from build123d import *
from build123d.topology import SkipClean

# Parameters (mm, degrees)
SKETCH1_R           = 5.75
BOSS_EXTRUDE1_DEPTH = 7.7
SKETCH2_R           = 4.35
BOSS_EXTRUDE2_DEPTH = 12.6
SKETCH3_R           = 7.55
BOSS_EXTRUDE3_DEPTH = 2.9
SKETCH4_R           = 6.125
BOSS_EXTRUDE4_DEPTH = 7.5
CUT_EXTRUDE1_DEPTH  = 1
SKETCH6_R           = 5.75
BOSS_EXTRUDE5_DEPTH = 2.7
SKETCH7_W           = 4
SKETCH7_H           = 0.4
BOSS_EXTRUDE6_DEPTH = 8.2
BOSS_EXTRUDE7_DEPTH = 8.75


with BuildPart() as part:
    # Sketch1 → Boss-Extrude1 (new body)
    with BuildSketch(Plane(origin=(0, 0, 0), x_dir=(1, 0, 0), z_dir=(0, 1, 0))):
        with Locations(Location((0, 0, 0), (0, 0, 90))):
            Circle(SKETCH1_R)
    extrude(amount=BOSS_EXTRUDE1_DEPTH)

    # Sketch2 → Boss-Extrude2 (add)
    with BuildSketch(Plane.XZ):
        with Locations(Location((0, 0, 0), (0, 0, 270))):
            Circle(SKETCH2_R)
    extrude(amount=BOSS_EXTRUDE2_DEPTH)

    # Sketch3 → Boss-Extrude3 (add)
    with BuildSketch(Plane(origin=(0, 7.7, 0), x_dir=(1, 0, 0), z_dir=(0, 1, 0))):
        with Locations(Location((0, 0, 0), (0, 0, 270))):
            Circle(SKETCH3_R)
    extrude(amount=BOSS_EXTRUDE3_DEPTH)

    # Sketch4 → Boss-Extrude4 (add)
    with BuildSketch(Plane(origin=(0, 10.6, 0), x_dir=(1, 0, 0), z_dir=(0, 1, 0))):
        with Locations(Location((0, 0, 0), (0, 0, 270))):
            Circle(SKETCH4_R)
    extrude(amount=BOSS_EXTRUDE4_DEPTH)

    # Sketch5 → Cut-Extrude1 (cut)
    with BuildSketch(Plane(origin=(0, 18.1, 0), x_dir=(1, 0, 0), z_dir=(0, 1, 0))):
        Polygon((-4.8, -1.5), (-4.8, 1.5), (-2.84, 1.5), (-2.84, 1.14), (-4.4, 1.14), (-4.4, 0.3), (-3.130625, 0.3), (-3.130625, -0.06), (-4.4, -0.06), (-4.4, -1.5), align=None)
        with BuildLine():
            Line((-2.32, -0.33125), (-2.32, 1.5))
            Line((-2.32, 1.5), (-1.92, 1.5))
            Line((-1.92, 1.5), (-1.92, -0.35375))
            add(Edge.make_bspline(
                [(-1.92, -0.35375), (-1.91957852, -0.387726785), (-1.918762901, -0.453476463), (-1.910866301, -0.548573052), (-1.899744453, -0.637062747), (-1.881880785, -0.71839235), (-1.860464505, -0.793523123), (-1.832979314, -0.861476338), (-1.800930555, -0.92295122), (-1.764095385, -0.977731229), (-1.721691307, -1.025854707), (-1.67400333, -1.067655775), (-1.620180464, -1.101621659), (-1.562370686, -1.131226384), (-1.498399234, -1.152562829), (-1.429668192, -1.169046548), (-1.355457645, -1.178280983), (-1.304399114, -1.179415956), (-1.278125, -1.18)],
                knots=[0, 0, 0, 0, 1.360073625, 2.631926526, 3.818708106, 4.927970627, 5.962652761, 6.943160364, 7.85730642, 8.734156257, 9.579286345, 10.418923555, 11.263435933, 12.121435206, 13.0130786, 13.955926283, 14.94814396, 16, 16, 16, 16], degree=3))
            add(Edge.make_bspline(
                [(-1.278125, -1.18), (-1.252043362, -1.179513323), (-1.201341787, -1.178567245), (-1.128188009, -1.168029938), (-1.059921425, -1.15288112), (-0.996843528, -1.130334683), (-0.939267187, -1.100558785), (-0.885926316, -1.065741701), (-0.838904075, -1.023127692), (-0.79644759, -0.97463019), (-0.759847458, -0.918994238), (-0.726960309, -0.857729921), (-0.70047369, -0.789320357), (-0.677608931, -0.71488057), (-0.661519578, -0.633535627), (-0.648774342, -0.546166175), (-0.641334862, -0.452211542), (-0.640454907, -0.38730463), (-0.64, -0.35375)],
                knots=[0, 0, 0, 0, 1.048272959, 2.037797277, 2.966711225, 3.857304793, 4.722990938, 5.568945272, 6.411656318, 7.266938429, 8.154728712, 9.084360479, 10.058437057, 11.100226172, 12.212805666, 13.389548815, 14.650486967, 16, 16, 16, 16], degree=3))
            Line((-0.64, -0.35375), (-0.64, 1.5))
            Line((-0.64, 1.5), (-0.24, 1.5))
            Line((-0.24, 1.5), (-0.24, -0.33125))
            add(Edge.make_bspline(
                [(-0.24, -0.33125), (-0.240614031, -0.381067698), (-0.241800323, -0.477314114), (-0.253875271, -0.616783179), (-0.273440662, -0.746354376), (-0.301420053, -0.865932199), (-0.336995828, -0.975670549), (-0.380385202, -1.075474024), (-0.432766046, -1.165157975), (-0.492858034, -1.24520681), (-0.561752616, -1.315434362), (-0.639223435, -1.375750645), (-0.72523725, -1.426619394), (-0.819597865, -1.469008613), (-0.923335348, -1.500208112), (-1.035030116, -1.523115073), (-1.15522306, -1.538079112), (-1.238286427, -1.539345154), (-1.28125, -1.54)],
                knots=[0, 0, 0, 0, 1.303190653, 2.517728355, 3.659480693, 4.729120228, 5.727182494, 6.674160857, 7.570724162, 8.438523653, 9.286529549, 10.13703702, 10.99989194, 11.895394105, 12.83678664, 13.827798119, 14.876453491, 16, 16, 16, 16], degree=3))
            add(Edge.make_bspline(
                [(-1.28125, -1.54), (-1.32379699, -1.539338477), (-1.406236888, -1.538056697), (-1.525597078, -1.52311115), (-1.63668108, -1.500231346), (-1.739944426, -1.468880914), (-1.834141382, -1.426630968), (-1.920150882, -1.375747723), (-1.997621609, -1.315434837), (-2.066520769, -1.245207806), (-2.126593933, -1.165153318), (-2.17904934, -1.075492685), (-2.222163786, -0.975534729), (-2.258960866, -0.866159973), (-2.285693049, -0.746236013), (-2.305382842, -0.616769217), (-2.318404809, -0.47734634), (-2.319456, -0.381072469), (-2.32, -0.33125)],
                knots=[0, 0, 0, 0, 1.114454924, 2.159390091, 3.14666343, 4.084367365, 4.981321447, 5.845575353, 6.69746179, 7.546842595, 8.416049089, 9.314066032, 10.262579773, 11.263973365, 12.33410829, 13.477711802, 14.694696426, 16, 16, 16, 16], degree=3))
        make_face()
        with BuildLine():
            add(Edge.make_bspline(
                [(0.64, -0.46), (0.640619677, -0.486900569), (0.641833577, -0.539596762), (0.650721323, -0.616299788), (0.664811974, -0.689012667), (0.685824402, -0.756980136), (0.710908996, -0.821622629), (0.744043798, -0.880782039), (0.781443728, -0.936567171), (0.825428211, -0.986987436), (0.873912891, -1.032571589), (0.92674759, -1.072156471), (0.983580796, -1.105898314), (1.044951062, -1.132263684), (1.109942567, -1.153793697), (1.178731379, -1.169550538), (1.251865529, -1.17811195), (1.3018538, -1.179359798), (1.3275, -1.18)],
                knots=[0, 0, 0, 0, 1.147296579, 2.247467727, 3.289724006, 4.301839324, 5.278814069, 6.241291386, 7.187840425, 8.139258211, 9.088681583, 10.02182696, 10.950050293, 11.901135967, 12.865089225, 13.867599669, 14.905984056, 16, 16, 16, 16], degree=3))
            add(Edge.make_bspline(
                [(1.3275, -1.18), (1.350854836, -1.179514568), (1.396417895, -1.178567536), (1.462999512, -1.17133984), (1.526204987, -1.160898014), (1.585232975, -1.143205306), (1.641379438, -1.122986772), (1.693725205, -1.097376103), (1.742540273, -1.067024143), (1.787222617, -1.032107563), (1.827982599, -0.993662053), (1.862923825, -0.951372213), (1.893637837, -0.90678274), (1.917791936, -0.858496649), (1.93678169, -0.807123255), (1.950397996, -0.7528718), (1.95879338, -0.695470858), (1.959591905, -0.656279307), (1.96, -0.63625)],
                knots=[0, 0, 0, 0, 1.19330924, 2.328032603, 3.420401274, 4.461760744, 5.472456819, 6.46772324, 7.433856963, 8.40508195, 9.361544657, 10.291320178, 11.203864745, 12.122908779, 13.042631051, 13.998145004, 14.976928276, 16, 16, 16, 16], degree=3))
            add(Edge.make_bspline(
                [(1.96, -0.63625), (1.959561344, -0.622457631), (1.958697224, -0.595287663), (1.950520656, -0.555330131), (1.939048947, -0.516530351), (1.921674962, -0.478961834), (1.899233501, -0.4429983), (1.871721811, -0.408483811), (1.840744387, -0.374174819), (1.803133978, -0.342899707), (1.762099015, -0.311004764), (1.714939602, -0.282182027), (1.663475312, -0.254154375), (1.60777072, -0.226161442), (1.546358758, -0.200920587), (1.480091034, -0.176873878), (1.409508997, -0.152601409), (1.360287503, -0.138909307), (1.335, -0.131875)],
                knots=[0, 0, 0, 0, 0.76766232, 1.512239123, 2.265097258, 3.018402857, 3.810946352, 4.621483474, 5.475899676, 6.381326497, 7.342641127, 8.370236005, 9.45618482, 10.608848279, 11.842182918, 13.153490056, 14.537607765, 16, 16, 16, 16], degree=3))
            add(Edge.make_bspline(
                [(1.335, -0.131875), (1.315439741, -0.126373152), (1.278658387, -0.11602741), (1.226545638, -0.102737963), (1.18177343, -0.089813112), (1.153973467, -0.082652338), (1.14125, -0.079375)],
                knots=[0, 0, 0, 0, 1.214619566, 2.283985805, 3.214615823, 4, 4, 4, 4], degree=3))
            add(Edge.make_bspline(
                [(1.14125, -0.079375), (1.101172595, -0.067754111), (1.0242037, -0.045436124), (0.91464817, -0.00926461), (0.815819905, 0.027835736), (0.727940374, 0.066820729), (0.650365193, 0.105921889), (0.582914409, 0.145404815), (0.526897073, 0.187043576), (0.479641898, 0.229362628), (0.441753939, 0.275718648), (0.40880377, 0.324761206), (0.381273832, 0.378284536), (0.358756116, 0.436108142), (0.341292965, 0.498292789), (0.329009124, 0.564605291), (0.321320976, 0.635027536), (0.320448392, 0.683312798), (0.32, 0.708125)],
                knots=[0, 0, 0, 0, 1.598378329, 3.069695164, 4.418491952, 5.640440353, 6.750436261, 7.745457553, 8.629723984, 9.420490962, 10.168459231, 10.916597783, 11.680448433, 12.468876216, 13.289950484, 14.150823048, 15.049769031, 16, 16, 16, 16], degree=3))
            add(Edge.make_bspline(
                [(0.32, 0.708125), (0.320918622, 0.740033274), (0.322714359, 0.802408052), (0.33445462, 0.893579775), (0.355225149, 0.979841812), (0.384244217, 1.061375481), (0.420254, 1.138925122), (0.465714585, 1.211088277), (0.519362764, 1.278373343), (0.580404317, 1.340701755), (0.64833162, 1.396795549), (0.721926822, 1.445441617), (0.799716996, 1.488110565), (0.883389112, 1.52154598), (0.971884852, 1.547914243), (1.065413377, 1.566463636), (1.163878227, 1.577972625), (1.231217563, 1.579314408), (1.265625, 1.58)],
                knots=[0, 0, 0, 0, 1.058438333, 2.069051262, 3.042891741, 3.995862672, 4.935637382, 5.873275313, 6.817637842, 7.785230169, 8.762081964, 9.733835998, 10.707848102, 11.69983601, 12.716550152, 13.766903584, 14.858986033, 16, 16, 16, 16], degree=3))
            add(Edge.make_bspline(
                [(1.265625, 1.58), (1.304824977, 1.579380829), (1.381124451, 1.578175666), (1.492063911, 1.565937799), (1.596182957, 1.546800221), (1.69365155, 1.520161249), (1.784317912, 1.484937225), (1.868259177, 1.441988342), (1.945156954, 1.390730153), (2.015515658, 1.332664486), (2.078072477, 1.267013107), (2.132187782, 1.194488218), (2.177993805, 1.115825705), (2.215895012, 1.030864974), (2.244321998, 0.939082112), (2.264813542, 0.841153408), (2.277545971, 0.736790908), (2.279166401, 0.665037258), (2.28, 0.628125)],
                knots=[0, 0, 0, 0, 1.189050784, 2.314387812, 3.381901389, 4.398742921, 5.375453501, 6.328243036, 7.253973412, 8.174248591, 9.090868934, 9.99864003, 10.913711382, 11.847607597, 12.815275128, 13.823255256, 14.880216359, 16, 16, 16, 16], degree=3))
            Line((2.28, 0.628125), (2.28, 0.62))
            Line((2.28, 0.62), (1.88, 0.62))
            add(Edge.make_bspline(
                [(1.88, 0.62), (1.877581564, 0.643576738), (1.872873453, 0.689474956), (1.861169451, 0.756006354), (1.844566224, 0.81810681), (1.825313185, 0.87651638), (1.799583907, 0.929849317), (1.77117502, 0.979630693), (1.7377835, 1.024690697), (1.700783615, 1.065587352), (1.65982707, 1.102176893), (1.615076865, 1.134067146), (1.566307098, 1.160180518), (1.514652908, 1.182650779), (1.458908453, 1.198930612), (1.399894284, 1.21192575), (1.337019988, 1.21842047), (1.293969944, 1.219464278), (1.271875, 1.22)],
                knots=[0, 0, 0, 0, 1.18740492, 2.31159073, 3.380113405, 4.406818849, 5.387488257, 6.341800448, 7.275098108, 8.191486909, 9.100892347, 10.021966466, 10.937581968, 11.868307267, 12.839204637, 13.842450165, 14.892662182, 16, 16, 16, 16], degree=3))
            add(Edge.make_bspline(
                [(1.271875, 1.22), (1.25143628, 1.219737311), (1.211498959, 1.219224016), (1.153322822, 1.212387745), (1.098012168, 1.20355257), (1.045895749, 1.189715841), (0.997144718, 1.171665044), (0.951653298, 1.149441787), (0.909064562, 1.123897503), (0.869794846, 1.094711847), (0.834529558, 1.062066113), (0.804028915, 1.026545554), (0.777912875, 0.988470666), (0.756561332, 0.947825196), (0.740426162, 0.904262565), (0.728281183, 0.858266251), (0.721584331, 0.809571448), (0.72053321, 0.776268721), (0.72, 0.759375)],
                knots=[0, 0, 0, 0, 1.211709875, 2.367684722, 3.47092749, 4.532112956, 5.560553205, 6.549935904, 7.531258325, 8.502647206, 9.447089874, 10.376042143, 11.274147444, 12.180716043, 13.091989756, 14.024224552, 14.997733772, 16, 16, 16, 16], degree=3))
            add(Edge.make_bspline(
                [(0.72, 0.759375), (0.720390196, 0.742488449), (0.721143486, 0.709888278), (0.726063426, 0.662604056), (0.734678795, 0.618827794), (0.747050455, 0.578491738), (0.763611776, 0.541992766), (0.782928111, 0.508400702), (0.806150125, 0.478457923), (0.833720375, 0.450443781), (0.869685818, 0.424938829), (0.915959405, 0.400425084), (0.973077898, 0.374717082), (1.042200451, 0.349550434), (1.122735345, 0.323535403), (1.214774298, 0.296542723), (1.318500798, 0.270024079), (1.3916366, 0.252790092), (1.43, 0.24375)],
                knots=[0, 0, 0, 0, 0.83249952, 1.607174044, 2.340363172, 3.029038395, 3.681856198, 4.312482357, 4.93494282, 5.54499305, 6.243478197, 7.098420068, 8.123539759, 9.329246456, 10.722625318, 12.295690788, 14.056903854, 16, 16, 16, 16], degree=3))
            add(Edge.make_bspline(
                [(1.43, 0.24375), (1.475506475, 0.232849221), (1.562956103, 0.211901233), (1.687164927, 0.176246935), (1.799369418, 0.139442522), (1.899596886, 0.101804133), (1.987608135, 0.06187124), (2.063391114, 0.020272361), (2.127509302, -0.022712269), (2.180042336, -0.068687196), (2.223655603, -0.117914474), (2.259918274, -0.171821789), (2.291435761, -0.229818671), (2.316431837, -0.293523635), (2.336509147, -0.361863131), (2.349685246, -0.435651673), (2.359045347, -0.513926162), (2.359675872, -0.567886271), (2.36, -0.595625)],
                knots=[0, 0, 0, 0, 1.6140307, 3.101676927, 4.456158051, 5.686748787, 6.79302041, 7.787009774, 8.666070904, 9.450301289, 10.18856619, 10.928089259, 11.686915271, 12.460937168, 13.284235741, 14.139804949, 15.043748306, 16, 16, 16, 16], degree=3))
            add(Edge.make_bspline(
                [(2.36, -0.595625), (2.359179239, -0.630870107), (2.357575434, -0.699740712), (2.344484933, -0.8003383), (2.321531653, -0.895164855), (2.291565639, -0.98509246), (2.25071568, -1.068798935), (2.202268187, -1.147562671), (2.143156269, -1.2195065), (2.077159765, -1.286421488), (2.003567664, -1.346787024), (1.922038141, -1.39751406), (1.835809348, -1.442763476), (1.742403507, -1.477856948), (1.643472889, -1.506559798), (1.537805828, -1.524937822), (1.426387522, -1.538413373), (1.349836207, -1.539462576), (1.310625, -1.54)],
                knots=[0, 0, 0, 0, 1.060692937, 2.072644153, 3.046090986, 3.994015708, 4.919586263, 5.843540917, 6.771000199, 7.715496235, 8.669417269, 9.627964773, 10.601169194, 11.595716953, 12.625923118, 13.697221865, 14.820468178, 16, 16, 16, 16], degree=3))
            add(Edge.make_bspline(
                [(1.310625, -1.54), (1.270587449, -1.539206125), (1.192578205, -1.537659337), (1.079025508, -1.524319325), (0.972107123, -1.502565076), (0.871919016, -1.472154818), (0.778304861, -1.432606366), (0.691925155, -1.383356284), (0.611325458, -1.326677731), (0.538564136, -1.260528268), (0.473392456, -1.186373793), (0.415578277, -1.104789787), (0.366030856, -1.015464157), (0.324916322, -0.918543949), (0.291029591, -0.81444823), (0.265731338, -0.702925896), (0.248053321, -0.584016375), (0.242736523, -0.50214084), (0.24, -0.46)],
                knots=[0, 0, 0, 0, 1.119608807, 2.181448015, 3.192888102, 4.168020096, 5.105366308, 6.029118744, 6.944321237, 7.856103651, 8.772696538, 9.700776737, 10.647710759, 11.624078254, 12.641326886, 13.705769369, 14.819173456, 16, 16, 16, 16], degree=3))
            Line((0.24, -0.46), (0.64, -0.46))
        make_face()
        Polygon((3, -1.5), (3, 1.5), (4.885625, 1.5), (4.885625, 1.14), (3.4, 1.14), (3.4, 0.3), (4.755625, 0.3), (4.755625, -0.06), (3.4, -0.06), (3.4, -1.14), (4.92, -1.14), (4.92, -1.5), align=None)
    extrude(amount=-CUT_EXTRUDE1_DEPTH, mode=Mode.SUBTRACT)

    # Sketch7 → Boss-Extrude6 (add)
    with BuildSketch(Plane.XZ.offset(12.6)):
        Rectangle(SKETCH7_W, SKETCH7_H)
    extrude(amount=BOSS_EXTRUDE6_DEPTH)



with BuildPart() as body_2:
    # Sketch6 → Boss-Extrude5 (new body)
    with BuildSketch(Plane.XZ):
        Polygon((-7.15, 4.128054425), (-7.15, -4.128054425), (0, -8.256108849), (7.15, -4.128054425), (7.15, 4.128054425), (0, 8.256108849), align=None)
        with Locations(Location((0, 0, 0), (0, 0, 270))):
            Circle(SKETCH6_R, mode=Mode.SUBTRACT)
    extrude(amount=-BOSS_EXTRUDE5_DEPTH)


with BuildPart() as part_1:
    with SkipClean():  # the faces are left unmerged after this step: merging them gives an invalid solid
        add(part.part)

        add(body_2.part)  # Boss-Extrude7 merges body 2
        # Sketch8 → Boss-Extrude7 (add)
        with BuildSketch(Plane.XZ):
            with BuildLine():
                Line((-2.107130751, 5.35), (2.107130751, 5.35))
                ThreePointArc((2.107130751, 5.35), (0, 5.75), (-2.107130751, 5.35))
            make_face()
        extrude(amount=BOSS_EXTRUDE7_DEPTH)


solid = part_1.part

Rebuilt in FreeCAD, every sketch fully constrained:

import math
import FreeCAD as App
import Part
import Sketcher
Q = App.Units.Quantity

doc = App.newDocument("Part")
params = doc.addObject("Spreadsheet::Sheet", "Params")
for row, (alias, value) in enumerate([
    ("sketch1_diameter", "11.5 mm"),
    ("pad1_length", "7.7 mm"),
    ("sketch2_diameter", "8.7 mm"),
    ("pad2_length", "12.6 mm"),
    ("sketch3_diameter", "15.1 mm"),
    ("pad3_length", "2.9 mm"),
    ("sketch4_diameter", "12.25 mm"),
    ("pad4_length", "7.5 mm"),
    ("sketch5_height", "3 mm"),
    ("sketch5_width", "1.56 mm"),
    ("sketch5_width2", "1.92 mm"),
    ("sketch5_width3", "1.52 mm"),
    ("sketch5_height2", "1.44 mm"),
    ("pocket1_length", "1 mm"),
    ("sketch6_width", "4 mm"),
    ("sketch6_height", "0.4 mm"),
    ("pad5_length", "8.2 mm"),
    ("sketch7_diameter", "11.5 mm"),
    ("pad6_length", "2.7 mm"),
    ("sketch8_radius", "5.75 mm"),
    ("pad7_length", "8.75 mm"),
], start=1):
    params.set(f"A{row}", alias)
    params.set(f"B{row}", "=" + value)
    params.setAlias(f"B{row}", alias)

body = doc.addObject("PartDesign::Body", "Body")

# Sketch on XZ plane
sketch1 = doc.addObject("Sketcher::SketchObject", "Sketch")
body.addObject(sketch1)
sketch1.AttachmentSupport = (doc.XZ_Plane, [""])
sketch1.MapMode = "FlatFace"
sketch1.addGeometry(Part.Circle(App.Vector(0, 0, 0), App.Vector(0, 0, 1), 6), False)
sketch1.addConstraint(Sketcher.Constraint("Coincident", 0, 3, -1, 1))
sketch1.addConstraint(Sketcher.Constraint("Diameter", 0, Q("11.5 mm")))
sketch1.setExpression("Constraints[1]", "Params.sketch1_diameter")
pad1 = doc.addObject("PartDesign::Pad", "Pad")
body.addObject(pad1)
pad1.Profile = sketch1
pad1.setExpression("Length", "Params.pad1_length")
pad1.Reversed = True

# Sketch on XZ plane
sketch2 = doc.addObject("Sketcher::SketchObject", "Sketch001")
body.addObject(sketch2)
sketch2.AttachmentSupport = (doc.XZ_Plane, [""])
sketch2.MapMode = "FlatFace"
sketch2.addGeometry(Part.Circle(App.Vector(0, 0, 0), App.Vector(0, 0, 1), 4.3), False)
sketch2.addConstraint(Sketcher.Constraint("Coincident", 0, 3, -1, 1))
sketch2.addConstraint(Sketcher.Constraint("Diameter", 0, Q("8.7 mm")))
sketch2.setExpression("Constraints[1]", "Params.sketch2_diameter")
pad2 = doc.addObject("PartDesign::Pad", "Pad001")
body.addObject(pad2)
pad2.Profile = sketch2
pad2.setExpression("Length", "Params.pad2_length")

# Sketch on XZ plane
sketch3 = doc.addObject("Sketcher::SketchObject", "Sketch002")
body.addObject(sketch3)
sketch3.AttachmentSupport = (doc.XZ_Plane, [""])
sketch3.MapMode = "FlatFace"
sketch3.AttachmentOffset = App.Placement(App.Vector(0, 0, -7.7), App.Rotation())
sketch3.addGeometry(Part.Circle(App.Vector(0, 0, 0), App.Vector(0, 0, 1), 8), False)
sketch3.addConstraint(Sketcher.Constraint("Coincident", 0, 3, -1, 1))
sketch3.addConstraint(Sketcher.Constraint("Diameter", 0, Q("15.1 mm")))
sketch3.setExpression("Constraints[1]", "Params.sketch3_diameter")
pad3 = doc.addObject("PartDesign::Pad", "Pad002")
body.addObject(pad3)
pad3.Profile = sketch3
pad3.setExpression("Length", "Params.pad3_length")
pad3.Reversed = True

# Sketch on XZ plane
sketch4 = doc.addObject("Sketcher::SketchObject", "Sketch003")
body.addObject(sketch4)
sketch4.AttachmentSupport = (doc.XZ_Plane, [""])
sketch4.MapMode = "FlatFace"
sketch4.AttachmentOffset = App.Placement(App.Vector(0, 0, -10.6), App.Rotation())
sketch4.addGeometry(Part.Circle(App.Vector(0, 0, 0), App.Vector(0, 0, 1), 6), False)
sketch4.addConstraint(Sketcher.Constraint("Coincident", 0, 3, -1, 1))
sketch4.addConstraint(Sketcher.Constraint("Diameter", 0, Q("12.25 mm")))
sketch4.setExpression("Constraints[1]", "Params.sketch4_diameter")
pad4 = doc.addObject("PartDesign::Pad", "Pad003")
body.addObject(pad4)
pad4.Profile = sketch4
pad4.setExpression("Length", "Params.pad4_length")
pad4.Reversed = True

# Sketch on XZ plane
sketch5 = doc.addObject("Sketcher::SketchObject", "Sketch004")
body.addObject(sketch5)
sketch5.AttachmentSupport = (doc.XZ_Plane, [""])
sketch5.MapMode = "FlatFace"
sketch5.AttachmentOffset = App.Placement(App.Vector(0, 0, -18.1), App.Rotation())
sketch5.addGeometry(Part.LineSegment(App.Vector(-4.8, -1.5, 0), App.Vector(-4.8, 1.5, 0)), False)
sketch5.addGeometry(Part.LineSegment(App.Vector(-4.8, 1.5, 0), App.Vector(-4.4, 1.5, 0)), False)
sketch5.addGeometry(Part.LineSegment(App.Vector(-4.4, 1.5, 0), App.Vector(-4.4, 0.06, 0)), False)
sketch5.addGeometry(Part.LineSegment(App.Vector(-4.4, 0.06, 0), App.Vector(-3.130625, 0.06, 0)), False)
sketch5.addGeometry(Part.LineSegment(App.Vector(-3.130625, 0.06, 0), App.Vector(-3.130625, -0.3, 0)), False)
sketch5.addGeometry(Part.LineSegment(App.Vector(-3.130625, -0.3, 0), App.Vector(-4.4, -0.3, 0)), False)
sketch5.addGeometry(Part.LineSegment(App.Vector(-4.4, -0.3, 0), App.Vector(-4.4, -1.14, 0)), False)
sketch5.addGeometry(Part.LineSegment(App.Vector(-4.4, -1.14, 0), App.Vector(-2.84, -1.14, 0)), False)
sketch5.addGeometry(Part.LineSegment(App.Vector(-2.84, -1.14, 0), App.Vector(-2.84, -1.5, 0)), False)
sketch5.addGeometry(Part.LineSegment(App.Vector(-2.84, -1.5, 0), App.Vector(-4.8, -1.5, 0)), False)
sketch5.addGeometry(Part.LineSegment(App.Vector(-2.32, -1.5, 0), App.Vector(-2.32, 0.33125, 0)), False)
sketch5.addGeometry(Part.BSplineCurve([App.Vector(-1.28125, 1.54, 0), App.Vector(-1.323797, 1.539338, 0), App.Vector(-1.406237, 1.538057, 0), App.Vector(-1.525597, 1.523111, 0), App.Vector(-1.636681, 1.500231, 0), App.Vector(-1.739944, 1.468881, 0), App.Vector(-1.834141, 1.426631, 0), App.Vector(-1.920151, 1.375748, 0), App.Vector(-1.997622, 1.315435, 0), App.Vector(-2.066521, 1.245208, 0), App.Vector(-2.126594, 1.165153, 0), App.Vector(-2.179049, 1.075493, 0), App.Vector(-2.222164, 0.975535, 0), App.Vector(-2.258961, 0.86616, 0), App.Vector(-2.285693, 0.746236, 0), App.Vector(-2.305383, 0.616769, 0), App.Vector(-2.318405, 0.477346, 0), App.Vector(-2.319456, 0.381072, 0), App.Vector(-2.32, 0.33125, 0)], [4, 1, 1, 1, 1, 1, 1, 1, 1, 1, 1, 1, 1, 1, 1, 1, 4], [0, 1.114454924, 2.159390091, 3.14666343, 4.084367365, 4.981321447, 5.845575353, 6.69746179, 7.546842595, 8.416049089, 9.314066032, 10.262579773, 11.263973365, 12.33410829, 13.477711802, 14.694696426, 16], False, 3, [1, 1, 1, 1, 1, 1, 1, 1, 1, 1, 1, 1, 1, 1, 1, 1, 1, 1, 1], False), False)
sketch5.addGeometry(Part.BSplineCurve([App.Vector(-0.24, 0.33125, 0), App.Vector(-0.240614, 0.381068, 0), App.Vector(-0.2418, 0.477314, 0), App.Vector(-0.253875, 0.616783, 0), App.Vector(-0.273441, 0.746354, 0), App.Vector(-0.30142, 0.865932, 0), App.Vector(-0.336996, 0.975671, 0), App.Vector(-0.380385, 1.075474, 0), App.Vector(-0.432766, 1.165158, 0), App.Vector(-0.492858, 1.245207, 0), App.Vector(-0.561753, 1.315434, 0), App.Vector(-0.639223, 1.375751, 0), App.Vector(-0.725237, 1.426619, 0), App.Vector(-0.819598, 1.469009, 0), App.Vector(-0.923335, 1.500208, 0), App.Vector(-1.03503, 1.523115, 0), App.Vector(-1.155223, 1.538079, 0), App.Vector(-1.238286, 1.539345, 0), App.Vector(-1.28125, 1.54, 0)], [4, 1, 1, 1, 1, 1, 1, 1, 1, 1, 1, 1, 1, 1, 1, 1, 4], [0, 1.303190653, 2.517728355, 3.659480693, 4.729120228, 5.727182494, 6.674160857, 7.570724162, 8.438523653, 9.286529549, 10.13703702, 10.99989194, 11.895394105, 12.83678664, 13.827798119, 14.876453491, 16], False, 3, [1, 1, 1, 1, 1, 1, 1, 1, 1, 1, 1, 1, 1, 1, 1, 1, 1, 1, 1], False), False)
sketch5.addGeometry(Part.LineSegment(App.Vector(-0.24, 0.33125, 0), App.Vector(-0.24, -1.5, 0)), False)
sketch5.addGeometry(Part.LineSegment(App.Vector(-0.24, -1.5, 0), App.Vector(-0.64, -1.5, 0)), False)
sketch5.addGeometry(Part.LineSegment(App.Vector(-0.64, -1.5, 0), App.Vector(-0.64, 0.35375, 0)), False)
sketch5.addGeometry(Part.BSplineCurve([App.Vector(-1.278125, 1.18, 0), App.Vector(-1.252043, 1.179513, 0), App.Vector(-1.201342, 1.178567, 0), App.Vector(-1.128188, 1.16803, 0), App.Vector(-1.059921, 1.152881, 0), App.Vector(-0.996844, 1.130335, 0), App.Vector(-0.939267, 1.100559, 0), App.Vector(-0.885926, 1.065742, 0), App.Vector(-0.838904, 1.023128, 0), App.Vector(-0.796448, 0.97463, 0), App.Vector(-0.759847, 0.918994, 0), App.Vector(-0.72696, 0.85773, 0), App.Vector(-0.700474, 0.78932, 0), App.Vector(-0.677609, 0.714881, 0), App.Vector(-0.66152, 0.633536, 0), App.Vector(-0.648774, 0.546166, 0), App.Vector(-0.641335, 0.452212, 0), App.Vector(-0.640455, 0.387305, 0), App.Vector(-0.64, 0.35375, 0)], [4, 1, 1, 1, 1, 1, 1, 1, 1, 1, 1, 1, 1, 1, 1, 1, 4], [0, 1.048272959, 2.037797277, 2.966711225, 3.857304793, 4.722990938, 5.568945272, 6.411656318, 7.266938429, 8.154728712, 9.084360479, 10.058437057, 11.100226172, 12.212805666, 13.389548815, 14.650486967, 16], False, 3, [1, 1, 1, 1, 1, 1, 1, 1, 1, 1, 1, 1, 1, 1, 1, 1, 1, 1, 1], False), False)
sketch5.addGeometry(Part.BSplineCurve([App.Vector(-1.92, 0.35375, 0), App.Vector(-1.919579, 0.387727, 0), App.Vector(-1.918763, 0.453476, 0), App.Vector(-1.910866, 0.548573, 0), App.Vector(-1.899744, 0.637063, 0), App.Vector(-1.881881, 0.718392, 0), App.Vector(-1.860465, 0.793523, 0), App.Vector(-1.832979, 0.861476, 0), App.Vector(-1.800931, 0.922951, 0), App.Vector(-1.764095, 0.977731, 0), App.Vector(-1.721691, 1.025855, 0), App.Vector(-1.674003, 1.067656, 0), App.Vector(-1.62018, 1.101622, 0), App.Vector(-1.562371, 1.131226, 0), App.Vector(-1.498399, 1.152563, 0), App.Vector(-1.429668, 1.169047, 0), App.Vector(-1.355458, 1.178281, 0), App.Vector(-1.304399, 1.179416, 0), App.Vector(-1.278125, 1.18, 0)], [4, 1, 1, 1, 1, 1, 1, 1, 1, 1, 1, 1, 1, 1, 1, 1, 4], [0, 1.360073625, 2.631926526, 3.818708106, 4.927970627, 5.962652761, 6.943160364, 7.85730642, 8.734156257, 9.579286345, 10.418923555, 11.263435933, 12.121435206, 13.0130786, 13.955926283, 14.94814396, 16], False, 3, [1, 1, 1, 1, 1, 1, 1, 1, 1, 1, 1, 1, 1, 1, 1, 1, 1, 1, 1], False), False)
sketch5.addGeometry(Part.LineSegment(App.Vector(-1.92, 0.35375, 0), App.Vector(-1.92, -1.5, 0)), False)
sketch5.addGeometry(Part.LineSegment(App.Vector(-1.92, -1.5, 0), App.Vector(-2.32, -1.5, 0)), False)
sketch5.addGeometry(Part.BSplineCurve([App.Vector(0.64, 0.46, 0), App.Vector(0.64062, 0.486901, 0), App.Vector(0.641834, 0.539597, 0), App.Vector(0.650721, 0.6163, 0), App.Vector(0.664812, 0.689013, 0), App.Vector(0.685824, 0.75698, 0), App.Vector(0.710909, 0.821623, 0), App.Vector(0.744044, 0.880782, 0), App.Vector(0.781444, 0.936567, 0), App.Vector(0.825428, 0.986987, 0), App.Vector(0.873913, 1.032572, 0), App.Vector(0.926748, 1.072156, 0), App.Vector(0.983581, 1.105898, 0), App.Vector(1.044951, 1.132264, 0), App.Vector(1.109943, 1.153794, 0), App.Vector(1.178731, 1.169551, 0), App.Vector(1.251866, 1.178112, 0), App.Vector(1.301854, 1.17936, 0), App.Vector(1.3275, 1.18, 0)], [4, 1, 1, 1, 1, 1, 1, 1, 1, 1, 1, 1, 1, 1, 1, 1, 4], [0, 1.147296579, 2.247467727, 3.289724006, 4.301839324, 5.278814069, 6.241291386, 7.187840425, 8.139258211, 9.088681583, 10.02182696, 10.950050293, 11.901135967, 12.865089225, 13.867599669, 14.905984056, 16], False, 3, [1, 1, 1, 1, 1, 1, 1, 1, 1, 1, 1, 1, 1, 1, 1, 1, 1, 1, 1], False), False)
sketch5.addGeometry(Part.LineSegment(App.Vector(0.64, 0.46, 0), App.Vector(0.24, 0.46, 0)), False)
sketch5.addGeometry(Part.BSplineCurve([App.Vector(1.310625, 1.54, 0), App.Vector(1.270587, 1.539206, 0), App.Vector(1.192578, 1.537659, 0), App.Vector(1.079026, 1.524319, 0), App.Vector(0.972107, 1.502565, 0), App.Vector(0.871919, 1.472155, 0), App.Vector(0.778305, 1.432606, 0), App.Vector(0.691925, 1.383356, 0), App.Vector(0.611325, 1.326678, 0), App.Vector(0.538564, 1.260528, 0), App.Vector(0.473392, 1.186374, 0), App.Vector(0.415578, 1.10479, 0), App.Vector(0.366031, 1.015464, 0), App.Vector(0.324916, 0.918544, 0), App.Vector(0.29103, 0.814448, 0), App.Vector(0.265731, 0.702926, 0), App.Vector(0.248053, 0.584016, 0), App.Vector(0.242737, 0.502141, 0), App.Vector(0.24, 0.46, 0)], [4, 1, 1, 1, 1, 1, 1, 1, 1, 1, 1, 1, 1, 1, 1, 1, 4], [0, 1.119608807, 2.181448015, 3.192888102, 4.168020096, 5.105366308, 6.029118744, 6.944321237, 7.856103651, 8.772696538, 9.700776737, 10.647710759, 11.624078254, 12.641326886, 13.705769369, 14.819173456, 16], False, 3, [1, 1, 1, 1, 1, 1, 1, 1, 1, 1, 1, 1, 1, 1, 1, 1, 1, 1, 1], False), False)
sketch5.addGeometry(Part.BSplineCurve([App.Vector(2.36, 0.595625, 0), App.Vector(2.359179, 0.63087, 0), App.Vector(2.357575, 0.699741, 0), App.Vector(2.344485, 0.800338, 0), App.Vector(2.321532, 0.895165, 0), App.Vector(2.291566, 0.985092, 0), App.Vector(2.250716, 1.068799, 0), App.Vector(2.202268, 1.147563, 0), App.Vector(2.143156, 1.219507, 0), App.Vector(2.07716, 1.286421, 0), App.Vector(2.003568, 1.346787, 0), App.Vector(1.922038, 1.397514, 0), App.Vector(1.835809, 1.442763, 0), App.Vector(1.742404, 1.477857, 0), App.Vector(1.643473, 1.50656, 0), App.Vector(1.537806, 1.524938, 0), App.Vector(1.426388, 1.538413, 0), App.Vector(1.349836, 1.539463, 0), App.Vector(1.310625, 1.54, 0)], [4, 1, 1, 1, 1, 1, 1, 1, 1, 1, 1, 1, 1, 1, 1, 1, 4], [0, 1.060692937, 2.072644153, 3.046090986, 3.994015708, 4.919586263, 5.843540917, 6.771000199, 7.715496235, 8.669417269, 9.627964773, 10.601169194, 11.595716953, 12.625923118, 13.697221865, 14.820468178, 16], False, 3, [1, 1, 1, 1, 1, 1, 1, 1, 1, 1, 1, 1, 1, 1, 1, 1, 1, 1, 1], False), False)
sketch5.addGeometry(Part.BSplineCurve([App.Vector(1.43, -0.24375, 0), App.Vector(1.475506, -0.232849, 0), App.Vector(1.562956, -0.211901, 0), App.Vector(1.687165, -0.176247, 0), App.Vector(1.799369, -0.139443, 0), App.Vector(1.899597, -0.101804, 0), App.Vector(1.987608, -0.061871, 0), App.Vector(2.063391, -0.020272, 0), App.Vector(2.127509, 0.022712, 0), App.Vector(2.180042, 0.068687, 0), App.Vector(2.223656, 0.117914, 0), App.Vector(2.259918, 0.171822, 0), App.Vector(2.291436, 0.229819, 0), App.Vector(2.316432, 0.293524, 0), App.Vector(2.336509, 0.361863, 0), App.Vector(2.349685, 0.435652, 0), App.Vector(2.359045, 0.513926, 0), App.Vector(2.359676, 0.567886, 0), App.Vector(2.36, 0.595625, 0)], [4, 1, 1, 1, 1, 1, 1, 1, 1, 1, 1, 1, 1, 1, 1, 1, 4], [0, 1.6140307, 3.101676927, 4.456158051, 5.686748787, 6.79302041, 7.787009774, 8.666070904, 9.450301289, 10.18856619, 10.928089259, 11.686915271, 12.460937168, 13.284235741, 14.139804949, 15.043748306, 16], False, 3, [1, 1, 1, 1, 1, 1, 1, 1, 1, 1, 1, 1, 1, 1, 1, 1, 1, 1, 1], False), False)
sketch5.addGeometry(Part.BSplineCurve([App.Vector(0.72, -0.759375, 0), App.Vector(0.72039, -0.742488, 0), App.Vector(0.721143, -0.709888, 0), App.Vector(0.726063, -0.662604, 0), App.Vector(0.734679, -0.618828, 0), App.Vector(0.74705, -0.578492, 0), App.Vector(0.763612, -0.541993, 0), App.Vector(0.782928, -0.508401, 0), App.Vector(0.80615, -0.478458, 0), App.Vector(0.83372, -0.450444, 0), App.Vector(0.869686, -0.424939, 0), App.Vector(0.915959, -0.400425, 0), App.Vector(0.973078, -0.374717, 0), App.Vector(1.0422, -0.34955, 0), App.Vector(1.122735, -0.323535, 0), App.Vector(1.214774, -0.296543, 0), App.Vector(1.318501, -0.270024, 0), App.Vector(1.391637, -0.25279, 0), App.Vector(1.43, -0.24375, 0)], [4, 1, 1, 1, 1, 1, 1, 1, 1, 1, 1, 1, 1, 1, 1, 1, 4], [0, 0.83249952, 1.607174044, 2.340363172, 3.029038395, 3.681856198, 4.312482357, 4.93494282, 5.54499305, 6.243478197, 7.098420068, 8.123539759, 9.329246456, 10.722625318, 12.295690788, 14.056903854, 16], False, 3, [1, 1, 1, 1, 1, 1, 1, 1, 1, 1, 1, 1, 1, 1, 1, 1, 1, 1, 1], False), False)
sketch5.addGeometry(Part.BSplineCurve([App.Vector(1.271875, -1.22, 0), App.Vector(1.251436, -1.219737, 0), App.Vector(1.211499, -1.219224, 0), App.Vector(1.153323, -1.212388, 0), App.Vector(1.098012, -1.203553, 0), App.Vector(1.045896, -1.189716, 0), App.Vector(0.997145, -1.171665, 0), App.Vector(0.951653, -1.149442, 0), App.Vector(0.909065, -1.123898, 0), App.Vector(0.869795, -1.094712, 0), App.Vector(0.83453, -1.062066, 0), App.Vector(0.804029, -1.026546, 0), App.Vector(0.777913, -0.988471, 0), App.Vector(0.756561, -0.947825, 0), App.Vector(0.740426, -0.904263, 0), App.Vector(0.728281, -0.858266, 0), App.Vector(0.721584, -0.809571, 0), App.Vector(0.720533, -0.776269, 0), App.Vector(0.72, -0.759375, 0)], [4, 1, 1, 1, 1, 1, 1, 1, 1, 1, 1, 1, 1, 1, 1, 1, 4], [0, 1.211709875, 2.367684722, 3.47092749, 4.532112956, 5.560553205, 6.549935904, 7.531258325, 8.502647206, 9.447089874, 10.376042143, 11.274147444, 12.180716043, 13.091989756, 14.024224552, 14.997733772, 16], False, 3, [1, 1, 1, 1, 1, 1, 1, 1, 1, 1, 1, 1, 1, 1, 1, 1, 1, 1, 1], False), False)
sketch5.addGeometry(Part.BSplineCurve([App.Vector(1.88, -0.62, 0), App.Vector(1.877582, -0.643577, 0), App.Vector(1.872873, -0.689475, 0), App.Vector(1.861169, -0.756006, 0), App.Vector(1.844566, -0.818107, 0), App.Vector(1.825313, -0.876516, 0), App.Vector(1.799584, -0.929849, 0), App.Vector(1.771175, -0.979631, 0), App.Vector(1.737783, -1.024691, 0), App.Vector(1.700784, -1.065587, 0), App.Vector(1.659827, -1.102177, 0), App.Vector(1.615077, -1.134067, 0), App.Vector(1.566307, -1.160181, 0), App.Vector(1.514653, -1.182651, 0), App.Vector(1.458908, -1.198931, 0), App.Vector(1.399894, -1.211926, 0), App.Vector(1.33702, -1.21842, 0), App.Vector(1.29397, -1.219464, 0), App.Vector(1.271875, -1.22, 0)], [4, 1, 1, 1, 1, 1, 1, 1, 1, 1, 1, 1, 1, 1, 1, 1, 4], [0, 1.18740492, 2.31159073, 3.380113405, 4.406818849, 5.387488257, 6.341800448, 7.275098108, 8.191486909, 9.100892347, 10.021966466, 10.937581968, 11.868307267, 12.839204637, 13.842450165, 14.892662182, 16], False, 3, [1, 1, 1, 1, 1, 1, 1, 1, 1, 1, 1, 1, 1, 1, 1, 1, 1, 1, 1], False), False)
sketch5.addGeometry(Part.LineSegment(App.Vector(1.88, -0.62, 0), App.Vector(2.28, -0.62, 0)), False)
sketch5.addGeometry(Part.LineSegment(App.Vector(2.28, -0.62, 0), App.Vector(2.28, -0.628125, 0)), False)
sketch5.addGeometry(Part.BSplineCurve([App.Vector(1.265625, -1.58, 0), App.Vector(1.304825, -1.579381, 0), App.Vector(1.381124, -1.578176, 0), App.Vector(1.492064, -1.565938, 0), App.Vector(1.596183, -1.5468, 0), App.Vector(1.693652, -1.520161, 0), App.Vector(1.784318, -1.484937, 0), App.Vector(1.868259, -1.441988, 0), App.Vector(1.945157, -1.39073, 0), App.Vector(2.015516, -1.332664, 0), App.Vector(2.078072, -1.267013, 0), App.Vector(2.132188, -1.194488, 0), App.Vector(2.177994, -1.115826, 0), App.Vector(2.215895, -1.030865, 0), App.Vector(2.244322, -0.939082, 0), App.Vector(2.264814, -0.841153, 0), App.Vector(2.277546, -0.736791, 0), App.Vector(2.279166, -0.665037, 0), App.Vector(2.28, -0.628125, 0)], [4, 1, 1, 1, 1, 1, 1, 1, 1, 1, 1, 1, 1, 1, 1, 1, 4], [0, 1.189050784, 2.314387812, 3.381901389, 4.398742921, 5.375453501, 6.328243036, 7.253973412, 8.174248591, 9.090868934, 9.99864003, 10.913711382, 11.847607597, 12.815275128, 13.823255256, 14.880216359, 16], False, 3, [1, 1, 1, 1, 1, 1, 1, 1, 1, 1, 1, 1, 1, 1, 1, 1, 1, 1, 1], False), False)
sketch5.addGeometry(Part.BSplineCurve([App.Vector(0.32, -0.708125, 0), App.Vector(0.320919, -0.740033, 0), App.Vector(0.322714, -0.802408, 0), App.Vector(0.334455, -0.89358, 0), App.Vector(0.355225, -0.979842, 0), App.Vector(0.384244, -1.061375, 0), App.Vector(0.420254, -1.138925, 0), App.Vector(0.465715, -1.211088, 0), App.Vector(0.519363, -1.278373, 0), App.Vector(0.580404, -1.340702, 0), App.Vector(0.648332, -1.396796, 0), App.Vector(0.721927, -1.445442, 0), App.Vector(0.799717, -1.488111, 0), App.Vector(0.883389, -1.521546, 0), App.Vector(0.971885, -1.547914, 0), App.Vector(1.065413, -1.566464, 0), App.Vector(1.163878, -1.577973, 0), App.Vector(1.231218, -1.579314, 0), App.Vector(1.265625, -1.58, 0)], [4, 1, 1, 1, 1, 1, 1, 1, 1, 1, 1, 1, 1, 1, 1, 1, 4], [0, 1.058438333, 2.069051262, 3.042891741, 3.995862672, 4.935637382, 5.873275313, 6.817637842, 7.785230169, 8.762081964, 9.733835998, 10.707848102, 11.69983601, 12.716550152, 13.766903584, 14.858986033, 16], False, 3, [1, 1, 1, 1, 1, 1, 1, 1, 1, 1, 1, 1, 1, 1, 1, 1, 1, 1, 1], False), False)
sketch5.addGeometry(Part.BSplineCurve([App.Vector(1.14125, 0.079375, 0), App.Vector(1.101173, 0.067754, 0), App.Vector(1.024204, 0.045436, 0), App.Vector(0.914648, 0.009265, 0), App.Vector(0.81582, -0.027836, 0), App.Vector(0.72794, -0.066821, 0), App.Vector(0.650365, -0.105922, 0), App.Vector(0.582914, -0.145405, 0), App.Vector(0.526897, -0.187044, 0), App.Vector(0.479642, -0.229363, 0), App.Vector(0.441754, -0.275719, 0), App.Vector(0.408804, -0.324761, 0), App.Vector(0.381274, -0.378285, 0), App.Vector(0.358756, -0.436108, 0), App.Vector(0.341293, -0.498293, 0), App.Vector(0.329009, -0.564605, 0), App.Vector(0.321321, -0.635028, 0), App.Vector(0.320448, -0.683313, 0), App.Vector(0.32, -0.708125, 0)], [4, 1, 1, 1, 1, 1, 1, 1, 1, 1, 1, 1, 1, 1, 1, 1, 4], [0, 1.598378329, 3.069695164, 4.418491952, 5.640440353, 6.750436261, 7.745457553, 8.629723984, 9.420490962, 10.168459231, 10.916597783, 11.680448433, 12.468876216, 13.289950484, 14.150823048, 15.049769031, 16], False, 3, [1, 1, 1, 1, 1, 1, 1, 1, 1, 1, 1, 1, 1, 1, 1, 1, 1, 1, 1], False), False)
sketch5.addGeometry(Part.BSplineCurve([App.Vector(1.335, 0.131875, 0), App.Vector(1.31544, 0.126373, 0), App.Vector(1.278658, 0.116027, 0), App.Vector(1.226546, 0.102738, 0), App.Vector(1.181773, 0.089813, 0), App.Vector(1.153973, 0.082652, 0), App.Vector(1.14125, 0.079375, 0)], [4, 1, 1, 1, 4], [0, 1.214619566, 2.283985805, 3.214615823, 4], False, 3, [1, 1, 1, 1, 1, 1, 1], False), False)
sketch5.addGeometry(Part.BSplineCurve([App.Vector(1.96, 0.63625, 0), App.Vector(1.959561, 0.622458, 0), App.Vector(1.958697, 0.595288, 0), App.Vector(1.950521, 0.55533, 0), App.Vector(1.939049, 0.51653, 0), App.Vector(1.921675, 0.478962, 0), App.Vector(1.899234, 0.442998, 0), App.Vector(1.871722, 0.408484, 0), App.Vector(1.840744, 0.374175, 0), App.Vector(1.803134, 0.3429, 0), App.Vector(1.762099, 0.311005, 0), App.Vector(1.71494, 0.282182, 0), App.Vector(1.663475, 0.254154, 0), App.Vector(1.607771, 0.226161, 0), App.Vector(1.546359, 0.200921, 0), App.Vector(1.480091, 0.176874, 0), App.Vector(1.409509, 0.152601, 0), App.Vector(1.360288, 0.138909, 0), App.Vector(1.335, 0.131875, 0)], [4, 1, 1, 1, 1, 1, 1, 1, 1, 1, 1, 1, 1, 1, 1, 1, 4], [0, 0.76766232, 1.512239123, 2.265097258, 3.018402857, 3.810946352, 4.621483474, 5.475899676, 6.381326497, 7.342641127, 8.370236005, 9.45618482, 10.608848279, 11.842182918, 13.153490056, 14.537607765, 16], False, 3, [1, 1, 1, 1, 1, 1, 1, 1, 1, 1, 1, 1, 1, 1, 1, 1, 1, 1, 1], False), False)
sketch5.addGeometry(Part.BSplineCurve([App.Vector(1.3275, 1.18, 0), App.Vector(1.350855, 1.179515, 0), App.Vector(1.396418, 1.178568, 0), App.Vector(1.463, 1.17134, 0), App.Vector(1.526205, 1.160898, 0), App.Vector(1.585233, 1.143205, 0), App.Vector(1.641379, 1.122987, 0), App.Vector(1.693725, 1.097376, 0), App.Vector(1.74254, 1.067024, 0), App.Vector(1.787223, 1.032108, 0), App.Vector(1.827983, 0.993662, 0), App.Vector(1.862924, 0.951372, 0), App.Vector(1.893638, 0.906783, 0), App.Vector(1.917792, 0.858497, 0), App.Vector(1.936782, 0.807123, 0), App.Vector(1.950398, 0.752872, 0), App.Vector(1.958793, 0.695471, 0), App.Vector(1.959592, 0.656279, 0), App.Vector(1.96, 0.63625, 0)], [4, 1, 1, 1, 1, 1, 1, 1, 1, 1, 1, 1, 1, 1, 1, 1, 4], [0, 1.19330924, 2.328032603, 3.420401274, 4.461760744, 5.472456819, 6.46772324, 7.433856963, 8.40508195, 9.361544657, 10.291320178, 11.203864745, 12.122908779, 13.042631051, 13.998145004, 14.976928276, 16], False, 3, [1, 1, 1, 1, 1, 1, 1, 1, 1, 1, 1, 1, 1, 1, 1, 1, 1, 1, 1], False), False)
sketch5.addGeometry(Part.LineSegment(App.Vector(3, -1.5, 0), App.Vector(3, 1.5, 0)), False)
sketch5.addGeometry(Part.LineSegment(App.Vector(3, 1.5, 0), App.Vector(4.92, 1.5, 0)), False)
sketch5.addGeometry(Part.LineSegment(App.Vector(4.92, 1.5, 0), App.Vector(4.92, 1.14, 0)), False)
sketch5.addGeometry(Part.LineSegment(App.Vector(4.92, 1.14, 0), App.Vector(3.4, 1.14, 0)), False)
sketch5.addGeometry(Part.LineSegment(App.Vector(3.4, 1.14, 0), App.Vector(3.4, 0.06, 0)), False)
sketch5.addGeometry(Part.LineSegment(App.Vector(3.4, 0.06, 0), App.Vector(4.755625, 0.06, 0)), False)
sketch5.addGeometry(Part.LineSegment(App.Vector(4.755625, 0.06, 0), App.Vector(4.755625, -0.3, 0)), False)
sketch5.addGeometry(Part.LineSegment(App.Vector(4.755625, -0.3, 0), App.Vector(3.4, -0.3, 0)), False)
sketch5.addGeometry(Part.LineSegment(App.Vector(3.4, -0.3, 0), App.Vector(3.4, -1.14, 0)), False)
sketch5.addGeometry(Part.LineSegment(App.Vector(3.4, -1.14, 0), App.Vector(4.885625, -1.14, 0)), False)
sketch5.addGeometry(Part.LineSegment(App.Vector(4.885625, -1.14, 0), App.Vector(4.885625, -1.5, 0)), False)
sketch5.addGeometry(Part.LineSegment(App.Vector(4.885625, -1.5, 0), App.Vector(3, -1.5, 0)), False)
sketch5.addConstraint(Sketcher.Constraint("Block", 11))
sketch5.addConstraint(Sketcher.Constraint("Block", 12))
sketch5.addConstraint(Sketcher.Constraint("Block", 16))
sketch5.addConstraint(Sketcher.Constraint("Block", 17))
sketch5.addConstraint(Sketcher.Constraint("Block", 20))
sketch5.addConstraint(Sketcher.Constraint("Block", 22))
sketch5.addConstraint(Sketcher.Constraint("Block", 23))
sketch5.addConstraint(Sketcher.Constraint("Block", 24))
sketch5.addConstraint(Sketcher.Constraint("Block", 25))
sketch5.addConstraint(Sketcher.Constraint("Block", 26))
sketch5.addConstraint(Sketcher.Constraint("Block", 27))
sketch5.addConstraint(Sketcher.Constraint("Block", 30))
sketch5.addConstraint(Sketcher.Constraint("Block", 31))
sketch5.addConstraint(Sketcher.Constraint("Block", 32))
sketch5.addConstraint(Sketcher.Constraint("Block", 33))
sketch5.addConstraint(Sketcher.Constraint("Block", 34))
sketch5.addConstraint(Sketcher.Constraint("Block", 35))
sketch5.addConstraint(Sketcher.Constraint("Coincident", 0, 2, 1, 1))
sketch5.addConstraint(Sketcher.Constraint("Coincident", 1, 2, 2, 1))
sketch5.addConstraint(Sketcher.Constraint("Coincident", 2, 2, 3, 1))
sketch5.addConstraint(Sketcher.Constraint("Coincident", 3, 2, 4, 1))
sketch5.addConstraint(Sketcher.Constraint("Coincident", 4, 2, 5, 1))
sketch5.addConstraint(Sketcher.Constraint("Coincident", 5, 2, 6, 1))
sketch5.addConstraint(Sketcher.Constraint("Coincident", 6, 2, 7, 1))
sketch5.addConstraint(Sketcher.Constraint("Coincident", 7, 2, 8, 1))
sketch5.addConstraint(Sketcher.Constraint("Coincident", 8, 2, 9, 1))
sketch5.addConstraint(Sketcher.Constraint("Coincident", 9, 2, 0, 1))
sketch5.addConstraint(Sketcher.Constraint("Coincident", 10, 2, 11, 2))
sketch5.addConstraint(Sketcher.Constraint("Coincident", 12, 1, 13, 1))
sketch5.addConstraint(Sketcher.Constraint("Coincident", 13, 2, 14, 1))
sketch5.addConstraint(Sketcher.Constraint("Coincident", 14, 2, 15, 1))
sketch5.addConstraint(Sketcher.Constraint("Coincident", 15, 2, 16, 2))
sketch5.addConstraint(Sketcher.Constraint("Coincident", 17, 1, 18, 1))
sketch5.addConstraint(Sketcher.Constraint("Coincident", 18, 2, 19, 1))
sketch5.addConstraint(Sketcher.Constraint("Coincident", 19, 2, 10, 1))
sketch5.addConstraint(Sketcher.Constraint("Coincident", 20, 1, 21, 1))
sketch5.addConstraint(Sketcher.Constraint("Coincident", 21, 2, 22, 2))
sketch5.addConstraint(Sketcher.Constraint("Coincident", 27, 1, 28, 1))
sketch5.addConstraint(Sketcher.Constraint("Coincident", 28, 2, 29, 1))
sketch5.addConstraint(Sketcher.Constraint("Coincident", 29, 2, 30, 2))
sketch5.addConstraint(Sketcher.Constraint("Coincident", 36, 2, 37, 1))
sketch5.addConstraint(Sketcher.Constraint("Coincident", 37, 2, 38, 1))
sketch5.addConstraint(Sketcher.Constraint("Coincident", 38, 2, 39, 1))
sketch5.addConstraint(Sketcher.Constraint("Coincident", 39, 2, 40, 1))
sketch5.addConstraint(Sketcher.Constraint("Coincident", 40, 2, 41, 1))
sketch5.addConstraint(Sketcher.Constraint("Coincident", 41, 2, 42, 1))
sketch5.addConstraint(Sketcher.Constraint("Coincident", 42, 2, 43, 1))
sketch5.addConstraint(Sketcher.Constraint("Coincident", 43, 2, 44, 1))
sketch5.addConstraint(Sketcher.Constraint("Coincident", 44, 2, 45, 1))
sketch5.addConstraint(Sketcher.Constraint("Coincident", 45, 2, 46, 1))
sketch5.addConstraint(Sketcher.Constraint("Coincident", 46, 2, 47, 1))
sketch5.addConstraint(Sketcher.Constraint("Coincident", 47, 2, 36, 1))
sketch5.addConstraint(Sketcher.Constraint("Vertical", 0))
sketch5.addConstraint(Sketcher.Constraint("Horizontal", 1))
sketch5.addConstraint(Sketcher.Constraint("Vertical", 2))
sketch5.addConstraint(Sketcher.Constraint("Horizontal", 3))
sketch5.addConstraint(Sketcher.Constraint("Vertical", 4))
sketch5.addConstraint(Sketcher.Constraint("Horizontal", 5))
sketch5.addConstraint(Sketcher.Constraint("Vertical", 6))
sketch5.addConstraint(Sketcher.Constraint("Horizontal", 7))
sketch5.addConstraint(Sketcher.Constraint("Vertical", 8))
sketch5.addConstraint(Sketcher.Constraint("Horizontal", 9))
sketch5.addConstraint(Sketcher.Constraint("Vertical", 10))
sketch5.addConstraint(Sketcher.Constraint("Vertical", 13))
sketch5.addConstraint(Sketcher.Constraint("Horizontal", 14))
sketch5.addConstraint(Sketcher.Constraint("Vertical", 15))
sketch5.addConstraint(Sketcher.Constraint("Vertical", 18))
sketch5.addConstraint(Sketcher.Constraint("Horizontal", 19))
sketch5.addConstraint(Sketcher.Constraint("Horizontal", 28))
sketch5.addConstraint(Sketcher.Constraint("Vertical", 29))
sketch5.addConstraint(Sketcher.Constraint("Vertical", 36))
sketch5.addConstraint(Sketcher.Constraint("Horizontal", 37))
sketch5.addConstraint(Sketcher.Constraint("Vertical", 38))
sketch5.addConstraint(Sketcher.Constraint("Horizontal", 39))
sketch5.addConstraint(Sketcher.Constraint("Vertical", 40))
sketch5.addConstraint(Sketcher.Constraint("Horizontal", 41))
sketch5.addConstraint(Sketcher.Constraint("Vertical", 42))
sketch5.addConstraint(Sketcher.Constraint("Horizontal", 43))
sketch5.addConstraint(Sketcher.Constraint("Vertical", 44))
sketch5.addConstraint(Sketcher.Constraint("Horizontal", 45))
sketch5.addConstraint(Sketcher.Constraint("Vertical", 46))
sketch5.addConstraint(Sketcher.Constraint("Horizontal", 47))
sketch5.addConstraint(Sketcher.Constraint("Symmetric", 39, 2, 44, 2, -1))
sketch5.addConstraint(Sketcher.Constraint("Horizontal", 9, 2, 13, 2))
sketch5.addConstraint(Sketcher.Constraint("Horizontal", 14, 2, 18, 2))
sketch5.addConstraint(Sketcher.Constraint("Horizontal", 1, 2, 36, 2))
sketch5.addConstraint(Sketcher.Constraint("Horizontal", 3, 2, 40, 2))
sketch5.addConstraint(Sketcher.Constraint("Horizontal", 5, 2, 42, 2))
sketch5.addConstraint(Sketcher.Constraint("Horizontal", 7, 2, 44, 2))
sketch5.addConstraint(Sketcher.Constraint("Horizontal", 19, 2, 46, 2))
sketch5.addConstraint(Sketcher.Constraint("Vertical", 2, 2, 5, 2))
sketch5.addConstraint(Sketcher.Constraint("Equal", 1, 14))
sketch5.addConstraint(Sketcher.Constraint("Equal", 4, 8))
sketch5.addConstraint(Sketcher.Constraint("Equal", 8, 38))
sketch5.addConstraint(Sketcher.Constraint("DistanceY", 0, 1, 0, 2, Q("3 mm")))
sketch5.addConstraint(Sketcher.Constraint("DistanceX", -1, 1, 36, 2, Q("3 mm")))
sketch5.addConstraint(Sketcher.Constraint("DistanceX", 7, 1, 7, 2, Q("1.56 mm")))
sketch5.addConstraint(Sketcher.Constraint("DistanceX", 37, 1, 37, 2, Q("1.92 mm")))
sketch5.addConstraint(Sketcher.Constraint("DistanceX", 39, 2, 39, 1, Q("1.52 mm")))
sketch5.addConstraint(Sketcher.Constraint("DistanceY", 2, 2, 2, 1, Q("1.44 mm")))
sketch5.addConstraint(Sketcher.Constraint("DistanceY", 4, 2, 4, 1, Q("0.36 mm")))
sketch5.addConstraint(Sketcher.Constraint("DistanceX", 0, 2, -1, 1, Q("4.8 mm")))
sketch5.addConstraint(Sketcher.Constraint("DistanceX", 42, 2, 45, 2, Q("0.13 mm")))
sketch5.addConstraint(Sketcher.Constraint("DistanceX", 3, 1, 3, 2, Q("1.269375 mm")))
sketch5.addConstraint(Sketcher.Constraint("DistanceX", 41, 1, 41, 2, Q("1.355625 mm")))
sketch5.setExpression("Constraints[94]", "Params.sketch5_height")
sketch5.setExpression("Constraints[96]", "Params.sketch5_width")
sketch5.setExpression("Constraints[97]", "Params.sketch5_width2")
sketch5.setExpression("Constraints[98]", "Params.sketch5_width3")
sketch5.setExpression("Constraints[99]", "Params.sketch5_height2")
pocket1 = doc.addObject("PartDesign::Pocket", "Pocket")
body.addObject(pocket1)
pocket1.Profile = sketch5
pocket1.setExpression("Length", "Params.pocket1_length")
pocket1.Reversed = True

# Sketch on XZ plane
sketch6 = doc.addObject("Sketcher::SketchObject", "Sketch005")
body.addObject(sketch6)
sketch6.AttachmentSupport = (doc.XZ_Plane, [""])
sketch6.MapMode = "FlatFace"
sketch6.AttachmentOffset = App.Placement(App.Vector(0, 0, 12.6), App.Rotation())
sketch6.addGeometry(Part.LineSegment(App.Vector(-2, 0.2, 0), App.Vector(-2, -0.2, 0)), False)
sketch6.addGeometry(Part.LineSegment(App.Vector(-2, -0.2, 0), App.Vector(2, -0.2, 0)), False)
sketch6.addGeometry(Part.LineSegment(App.Vector(2, -0.2, 0), App.Vector(2, 0.2, 0)), False)
sketch6.addGeometry(Part.LineSegment(App.Vector(2, 0.2, 0), App.Vector(-2, 0.2, 0)), False)
sketch6.addConstraint(Sketcher.Constraint("Coincident", 0, 2, 1, 1))
sketch6.addConstraint(Sketcher.Constraint("Coincident", 1, 2, 2, 1))
sketch6.addConstraint(Sketcher.Constraint("Coincident", 2, 2, 3, 1))
sketch6.addConstraint(Sketcher.Constraint("Coincident", 3, 2, 0, 1))
sketch6.addConstraint(Sketcher.Constraint("Vertical", 0))
sketch6.addConstraint(Sketcher.Constraint("Horizontal", 1))
sketch6.addConstraint(Sketcher.Constraint("Vertical", 2))
sketch6.addConstraint(Sketcher.Constraint("Horizontal", 3))
sketch6.addConstraint(Sketcher.Constraint("Symmetric", 0, 2, 2, 2, -1, 1))
sketch6.addConstraint(Sketcher.Constraint("DistanceX", 1, 1, 1, 2, Q("4 mm")))
sketch6.addConstraint(Sketcher.Constraint("DistanceY", 0, 2, 0, 1, Q("0.4 mm")))
sketch6.setExpression("Constraints[9]", "Params.sketch6_width")
sketch6.setExpression("Constraints[10]", "Params.sketch6_height")
pad5 = doc.addObject("PartDesign::Pad", "Pad004")
body.addObject(pad5)
pad5.Profile = sketch6
pad5.setExpression("Length", "Params.pad5_length")
body2 = doc.addObject("PartDesign::Body", "Body001")

# Sketch on XZ plane
sketch7 = doc.addObject("Sketcher::SketchObject", "Sketch006")
body2.addObject(sketch7)
sketch7.AttachmentSupport = (doc.getObject("XZ_Plane001"), [""])
sketch7.MapMode = "FlatFace"
sketch7.addGeometry(Part.LineSegment(App.Vector(-7, 4, 0), App.Vector(-7, -4, 0)), False)
sketch7.addGeometry(Part.LineSegment(App.Vector(-7, -4, 0), App.Vector(0, -8, 0)), False)
sketch7.addGeometry(Part.LineSegment(App.Vector(0, -8, 0), App.Vector(7, -4, 0)), False)
sketch7.addGeometry(Part.LineSegment(App.Vector(7, -4, 0), App.Vector(7, 4, 0)), False)
sketch7.addGeometry(Part.LineSegment(App.Vector(7, 4, 0), App.Vector(0, 8, 0)), False)
sketch7.addGeometry(Part.LineSegment(App.Vector(0, 8, 0), App.Vector(-7, 4, 0)), False)
sketch7.addGeometry(Part.Circle(App.Vector(0, 0, 0), App.Vector(0, 0, 1), 6), False)
sketch7.addConstraint(Sketcher.Constraint("Coincident", 0, 2, 1, 1))
sketch7.addConstraint(Sketcher.Constraint("Coincident", 1, 2, 2, 1))
sketch7.addConstraint(Sketcher.Constraint("Coincident", 2, 2, 3, 1))
sketch7.addConstraint(Sketcher.Constraint("Coincident", 3, 2, 4, 1))
sketch7.addConstraint(Sketcher.Constraint("Coincident", 4, 2, 5, 1))
sketch7.addConstraint(Sketcher.Constraint("Coincident", 5, 2, 0, 1))
sketch7.addConstraint(Sketcher.Constraint("Vertical", 0))
sketch7.addConstraint(Sketcher.Constraint("Vertical", 3))
sketch7.addConstraint(Sketcher.Constraint("Coincident", 6, 3, -1, 1))
sketch7.addConstraint(Sketcher.Constraint("Symmetric", 0, 2, 3, 2, -1, 1))
sketch7.addConstraint(Sketcher.Constraint("Symmetric", 1, 2, 4, 2, -1, 1))
sketch7.addConstraint(Sketcher.Constraint("PointOnObject", 1, 2, -2))
sketch7.addConstraint(Sketcher.Constraint("Parallel", 2, 5))
sketch7.addConstraint(Sketcher.Constraint("Horizontal", 0, 2, 2, 2))
sketch7.addConstraint(Sketcher.Constraint("Diameter", 6, Q("11.5 mm")))
sketch7.addConstraint(Sketcher.Constraint("Angle", 1, Q("-30 deg")))
sketch7.addConstraint(Sketcher.Constraint("DistanceX", 0, 2, 2, 2, Q("14.3 mm")))
sketch7.addConstraint(Sketcher.Constraint("DistanceY", 0, 2, 0, 1, Q("8.256109 mm")))
sketch7.setExpression("Constraints[14]", "Params.sketch7_diameter")
pad6 = doc.addObject("PartDesign::Pad", "Pad005")
body2.addObject(pad6)
pad6.Profile = sketch7
pad6.setExpression("Length", "Params.pad6_length")
pad6.Reversed = True
doc.recompute()

boolean = doc.addObject("PartDesign::Boolean", "Boolean")
body.addObject(boolean)
boolean.Type = "Fuse"
boolean.addObjects([body2])

# Sketch on XZ plane
sketch8 = doc.addObject("Sketcher::SketchObject", "Sketch007")
body.addObject(sketch8)
sketch8.AttachmentSupport = (doc.XZ_Plane, [""])
sketch8.MapMode = "FlatFace"
sketch8.addGeometry(Part.LineSegment(App.Vector(-2.1, 5.3, 0), App.Vector(2.1, 5.3, 0)), False)
sketch8.addGeometry(Part.ArcOfCircle(Part.Circle(App.Vector(0, 0, 0), App.Vector(0, 0, 1), 5.8), math.radians(69), math.radians(111)), False)
sketch8.addConstraint(Sketcher.Constraint("Coincident", 0, 1, 1, 2))
sketch8.addConstraint(Sketcher.Constraint("Coincident", 1, 1, 0, 2))
sketch8.addConstraint(Sketcher.Constraint("Horizontal", 0))
sketch8.addConstraint(Sketcher.Constraint("Coincident", 1, 3, -1, 1))
sketch8.addConstraint(Sketcher.Constraint("Radius", 1, Q("5.75 mm")))
sketch8.addConstraint(Sketcher.Constraint("DistanceY", -1, 1, 0, 1, Q("5.35 mm")))
sketch8.setExpression("Constraints[4]", "Params.sketch8_radius")
pad7 = doc.addObject("PartDesign::Pad", "Pad006")
body.addObject(pad7)
pad7.Profile = sketch8
pad7.setExpression("Length", "Params.pad7_length")

doc.recompute()
